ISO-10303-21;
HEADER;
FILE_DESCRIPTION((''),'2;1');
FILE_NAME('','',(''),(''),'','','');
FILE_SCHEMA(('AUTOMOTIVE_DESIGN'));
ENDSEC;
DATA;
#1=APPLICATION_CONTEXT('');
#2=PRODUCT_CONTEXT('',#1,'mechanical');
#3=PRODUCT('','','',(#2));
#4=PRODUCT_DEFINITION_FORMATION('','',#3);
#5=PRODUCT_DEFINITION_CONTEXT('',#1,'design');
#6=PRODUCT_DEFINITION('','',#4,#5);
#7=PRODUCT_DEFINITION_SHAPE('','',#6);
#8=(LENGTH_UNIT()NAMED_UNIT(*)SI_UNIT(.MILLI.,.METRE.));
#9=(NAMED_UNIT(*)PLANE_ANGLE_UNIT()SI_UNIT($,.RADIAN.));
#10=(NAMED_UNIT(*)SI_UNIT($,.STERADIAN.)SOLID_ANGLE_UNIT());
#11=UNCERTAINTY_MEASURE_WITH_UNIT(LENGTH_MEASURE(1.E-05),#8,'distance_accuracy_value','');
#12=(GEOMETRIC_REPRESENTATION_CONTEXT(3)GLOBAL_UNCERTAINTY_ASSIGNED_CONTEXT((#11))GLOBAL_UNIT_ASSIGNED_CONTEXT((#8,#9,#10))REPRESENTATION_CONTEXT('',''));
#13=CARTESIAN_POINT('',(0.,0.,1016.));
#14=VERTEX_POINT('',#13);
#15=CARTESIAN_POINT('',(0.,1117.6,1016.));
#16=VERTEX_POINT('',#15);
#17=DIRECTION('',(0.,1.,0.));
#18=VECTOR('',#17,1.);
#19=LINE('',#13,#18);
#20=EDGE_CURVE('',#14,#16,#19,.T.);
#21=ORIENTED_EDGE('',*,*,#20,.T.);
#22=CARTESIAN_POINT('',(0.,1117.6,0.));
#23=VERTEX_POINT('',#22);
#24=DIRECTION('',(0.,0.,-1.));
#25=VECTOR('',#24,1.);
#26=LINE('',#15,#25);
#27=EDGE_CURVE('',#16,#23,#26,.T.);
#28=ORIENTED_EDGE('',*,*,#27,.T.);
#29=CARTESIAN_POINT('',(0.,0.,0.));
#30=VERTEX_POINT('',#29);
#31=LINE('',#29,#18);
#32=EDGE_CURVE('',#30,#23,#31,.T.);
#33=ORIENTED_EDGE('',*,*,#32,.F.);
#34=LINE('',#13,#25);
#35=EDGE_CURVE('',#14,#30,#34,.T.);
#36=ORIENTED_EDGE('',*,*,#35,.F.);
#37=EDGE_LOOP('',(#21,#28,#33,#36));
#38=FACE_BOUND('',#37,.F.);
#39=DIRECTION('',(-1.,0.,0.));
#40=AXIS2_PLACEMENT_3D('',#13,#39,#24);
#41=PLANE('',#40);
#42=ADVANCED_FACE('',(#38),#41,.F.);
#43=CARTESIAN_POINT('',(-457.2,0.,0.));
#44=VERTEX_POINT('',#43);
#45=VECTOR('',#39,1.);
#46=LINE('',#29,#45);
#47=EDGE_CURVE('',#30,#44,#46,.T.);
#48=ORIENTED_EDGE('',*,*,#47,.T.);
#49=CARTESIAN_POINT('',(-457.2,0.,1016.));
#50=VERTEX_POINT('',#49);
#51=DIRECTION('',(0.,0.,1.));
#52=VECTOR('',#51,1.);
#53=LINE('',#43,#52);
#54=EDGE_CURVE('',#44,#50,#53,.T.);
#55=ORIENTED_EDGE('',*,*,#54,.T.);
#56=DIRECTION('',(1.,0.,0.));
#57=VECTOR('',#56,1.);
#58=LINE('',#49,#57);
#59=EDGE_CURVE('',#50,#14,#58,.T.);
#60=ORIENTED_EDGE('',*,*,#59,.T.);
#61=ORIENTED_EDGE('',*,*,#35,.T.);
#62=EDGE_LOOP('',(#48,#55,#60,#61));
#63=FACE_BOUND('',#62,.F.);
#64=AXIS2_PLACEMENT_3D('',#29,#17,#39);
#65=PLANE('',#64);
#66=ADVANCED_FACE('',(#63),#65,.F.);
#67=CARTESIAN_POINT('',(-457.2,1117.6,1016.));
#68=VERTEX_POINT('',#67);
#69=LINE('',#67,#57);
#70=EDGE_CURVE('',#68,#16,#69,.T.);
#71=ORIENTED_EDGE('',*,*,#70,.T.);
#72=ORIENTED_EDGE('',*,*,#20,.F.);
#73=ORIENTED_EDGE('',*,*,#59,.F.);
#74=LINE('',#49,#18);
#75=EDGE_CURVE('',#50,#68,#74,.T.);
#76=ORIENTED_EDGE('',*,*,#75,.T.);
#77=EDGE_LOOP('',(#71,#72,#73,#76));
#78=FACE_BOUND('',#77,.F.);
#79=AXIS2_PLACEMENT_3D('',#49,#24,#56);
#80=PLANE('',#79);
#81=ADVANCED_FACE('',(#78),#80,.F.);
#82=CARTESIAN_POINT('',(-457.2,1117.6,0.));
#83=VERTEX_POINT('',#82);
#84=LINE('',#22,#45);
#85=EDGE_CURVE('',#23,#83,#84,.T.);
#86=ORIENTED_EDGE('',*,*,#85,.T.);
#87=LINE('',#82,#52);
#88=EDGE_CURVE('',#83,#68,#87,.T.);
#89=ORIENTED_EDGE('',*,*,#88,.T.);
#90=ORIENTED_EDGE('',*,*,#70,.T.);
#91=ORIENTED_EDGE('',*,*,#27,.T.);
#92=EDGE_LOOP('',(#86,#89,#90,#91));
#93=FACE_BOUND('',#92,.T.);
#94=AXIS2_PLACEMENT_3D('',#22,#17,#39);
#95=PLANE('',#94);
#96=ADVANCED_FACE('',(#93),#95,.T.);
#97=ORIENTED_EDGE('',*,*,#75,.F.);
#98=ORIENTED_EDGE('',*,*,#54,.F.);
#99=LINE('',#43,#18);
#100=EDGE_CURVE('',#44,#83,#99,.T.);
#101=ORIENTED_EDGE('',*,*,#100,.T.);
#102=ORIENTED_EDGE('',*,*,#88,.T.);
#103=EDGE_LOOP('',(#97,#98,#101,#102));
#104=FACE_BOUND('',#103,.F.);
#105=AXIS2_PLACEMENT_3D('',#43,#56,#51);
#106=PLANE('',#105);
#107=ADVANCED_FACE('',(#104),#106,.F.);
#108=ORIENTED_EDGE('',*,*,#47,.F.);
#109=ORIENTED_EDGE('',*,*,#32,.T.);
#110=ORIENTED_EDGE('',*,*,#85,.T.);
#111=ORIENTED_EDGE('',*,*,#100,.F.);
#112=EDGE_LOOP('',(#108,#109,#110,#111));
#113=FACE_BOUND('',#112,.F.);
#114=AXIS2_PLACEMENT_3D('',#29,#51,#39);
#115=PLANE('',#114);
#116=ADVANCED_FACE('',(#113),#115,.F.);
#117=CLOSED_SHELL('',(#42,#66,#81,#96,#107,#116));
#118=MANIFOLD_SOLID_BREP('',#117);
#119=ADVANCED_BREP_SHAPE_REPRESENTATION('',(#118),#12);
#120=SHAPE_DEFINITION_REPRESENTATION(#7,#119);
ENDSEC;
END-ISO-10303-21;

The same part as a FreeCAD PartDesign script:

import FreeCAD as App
import Part
import Sketcher
Q = App.Units.Quantity

doc = App.newDocument("Part")
body = doc.addObject("PartDesign::Body", "Body")

# Sketch on XZ plane
sketch1 = body.newObject("Sketcher::SketchObject", "Sketch")
sketch1.AttachmentSupport = (doc.getObject("XZ_Plane"), [""])
sketch1.MapMode = "FlatFace"
sketch1.addGeometry([
    Part.LineSegment(App.Vector(0, 1016, 0), App.Vector(0, 0, 0)),
    Part.LineSegment(App.Vector(0, 0, 0), App.Vector(-457, 0, 0)),
    Part.LineSegment(App.Vector(-457, 0, 0), App.Vector(-457, 1016, 0)),
    Part.LineSegment(App.Vector(-457, 1016, 0), App.Vector(0, 1016, 0)),
], False)
sketch1.addConstraint([
    Sketcher.Constraint("Coincident", 0, 2, 1, 1),
    Sketcher.Constraint("Coincident", 1, 2, 2, 1),
    Sketcher.Constraint("Coincident", 2, 2, 3, 1),
    Sketcher.Constraint("Coincident", 3, 2, 0, 1),
    Sketcher.Constraint("Vertical", 0),
    Sketcher.Constraint("Horizontal", 1),
    Sketcher.Constraint("Vertical", 2),
    Sketcher.Constraint("Horizontal", 3),
    Sketcher.Constraint("Coincident", 0, 2, -1, 1),
    Sketcher.Constraint("DistanceX", 1, 2, 1, 1, Q("18 in")),
    Sketcher.Constraint("DistanceY", 0, 2, 0, 1, Q("40 in")),
])
pad1 = body.newObject("PartDesign::Pad", "Pad")
pad1.Profile = sketch1
pad1.Length = Q("44 in")
pad1.Reversed = True

doc.recompute()
